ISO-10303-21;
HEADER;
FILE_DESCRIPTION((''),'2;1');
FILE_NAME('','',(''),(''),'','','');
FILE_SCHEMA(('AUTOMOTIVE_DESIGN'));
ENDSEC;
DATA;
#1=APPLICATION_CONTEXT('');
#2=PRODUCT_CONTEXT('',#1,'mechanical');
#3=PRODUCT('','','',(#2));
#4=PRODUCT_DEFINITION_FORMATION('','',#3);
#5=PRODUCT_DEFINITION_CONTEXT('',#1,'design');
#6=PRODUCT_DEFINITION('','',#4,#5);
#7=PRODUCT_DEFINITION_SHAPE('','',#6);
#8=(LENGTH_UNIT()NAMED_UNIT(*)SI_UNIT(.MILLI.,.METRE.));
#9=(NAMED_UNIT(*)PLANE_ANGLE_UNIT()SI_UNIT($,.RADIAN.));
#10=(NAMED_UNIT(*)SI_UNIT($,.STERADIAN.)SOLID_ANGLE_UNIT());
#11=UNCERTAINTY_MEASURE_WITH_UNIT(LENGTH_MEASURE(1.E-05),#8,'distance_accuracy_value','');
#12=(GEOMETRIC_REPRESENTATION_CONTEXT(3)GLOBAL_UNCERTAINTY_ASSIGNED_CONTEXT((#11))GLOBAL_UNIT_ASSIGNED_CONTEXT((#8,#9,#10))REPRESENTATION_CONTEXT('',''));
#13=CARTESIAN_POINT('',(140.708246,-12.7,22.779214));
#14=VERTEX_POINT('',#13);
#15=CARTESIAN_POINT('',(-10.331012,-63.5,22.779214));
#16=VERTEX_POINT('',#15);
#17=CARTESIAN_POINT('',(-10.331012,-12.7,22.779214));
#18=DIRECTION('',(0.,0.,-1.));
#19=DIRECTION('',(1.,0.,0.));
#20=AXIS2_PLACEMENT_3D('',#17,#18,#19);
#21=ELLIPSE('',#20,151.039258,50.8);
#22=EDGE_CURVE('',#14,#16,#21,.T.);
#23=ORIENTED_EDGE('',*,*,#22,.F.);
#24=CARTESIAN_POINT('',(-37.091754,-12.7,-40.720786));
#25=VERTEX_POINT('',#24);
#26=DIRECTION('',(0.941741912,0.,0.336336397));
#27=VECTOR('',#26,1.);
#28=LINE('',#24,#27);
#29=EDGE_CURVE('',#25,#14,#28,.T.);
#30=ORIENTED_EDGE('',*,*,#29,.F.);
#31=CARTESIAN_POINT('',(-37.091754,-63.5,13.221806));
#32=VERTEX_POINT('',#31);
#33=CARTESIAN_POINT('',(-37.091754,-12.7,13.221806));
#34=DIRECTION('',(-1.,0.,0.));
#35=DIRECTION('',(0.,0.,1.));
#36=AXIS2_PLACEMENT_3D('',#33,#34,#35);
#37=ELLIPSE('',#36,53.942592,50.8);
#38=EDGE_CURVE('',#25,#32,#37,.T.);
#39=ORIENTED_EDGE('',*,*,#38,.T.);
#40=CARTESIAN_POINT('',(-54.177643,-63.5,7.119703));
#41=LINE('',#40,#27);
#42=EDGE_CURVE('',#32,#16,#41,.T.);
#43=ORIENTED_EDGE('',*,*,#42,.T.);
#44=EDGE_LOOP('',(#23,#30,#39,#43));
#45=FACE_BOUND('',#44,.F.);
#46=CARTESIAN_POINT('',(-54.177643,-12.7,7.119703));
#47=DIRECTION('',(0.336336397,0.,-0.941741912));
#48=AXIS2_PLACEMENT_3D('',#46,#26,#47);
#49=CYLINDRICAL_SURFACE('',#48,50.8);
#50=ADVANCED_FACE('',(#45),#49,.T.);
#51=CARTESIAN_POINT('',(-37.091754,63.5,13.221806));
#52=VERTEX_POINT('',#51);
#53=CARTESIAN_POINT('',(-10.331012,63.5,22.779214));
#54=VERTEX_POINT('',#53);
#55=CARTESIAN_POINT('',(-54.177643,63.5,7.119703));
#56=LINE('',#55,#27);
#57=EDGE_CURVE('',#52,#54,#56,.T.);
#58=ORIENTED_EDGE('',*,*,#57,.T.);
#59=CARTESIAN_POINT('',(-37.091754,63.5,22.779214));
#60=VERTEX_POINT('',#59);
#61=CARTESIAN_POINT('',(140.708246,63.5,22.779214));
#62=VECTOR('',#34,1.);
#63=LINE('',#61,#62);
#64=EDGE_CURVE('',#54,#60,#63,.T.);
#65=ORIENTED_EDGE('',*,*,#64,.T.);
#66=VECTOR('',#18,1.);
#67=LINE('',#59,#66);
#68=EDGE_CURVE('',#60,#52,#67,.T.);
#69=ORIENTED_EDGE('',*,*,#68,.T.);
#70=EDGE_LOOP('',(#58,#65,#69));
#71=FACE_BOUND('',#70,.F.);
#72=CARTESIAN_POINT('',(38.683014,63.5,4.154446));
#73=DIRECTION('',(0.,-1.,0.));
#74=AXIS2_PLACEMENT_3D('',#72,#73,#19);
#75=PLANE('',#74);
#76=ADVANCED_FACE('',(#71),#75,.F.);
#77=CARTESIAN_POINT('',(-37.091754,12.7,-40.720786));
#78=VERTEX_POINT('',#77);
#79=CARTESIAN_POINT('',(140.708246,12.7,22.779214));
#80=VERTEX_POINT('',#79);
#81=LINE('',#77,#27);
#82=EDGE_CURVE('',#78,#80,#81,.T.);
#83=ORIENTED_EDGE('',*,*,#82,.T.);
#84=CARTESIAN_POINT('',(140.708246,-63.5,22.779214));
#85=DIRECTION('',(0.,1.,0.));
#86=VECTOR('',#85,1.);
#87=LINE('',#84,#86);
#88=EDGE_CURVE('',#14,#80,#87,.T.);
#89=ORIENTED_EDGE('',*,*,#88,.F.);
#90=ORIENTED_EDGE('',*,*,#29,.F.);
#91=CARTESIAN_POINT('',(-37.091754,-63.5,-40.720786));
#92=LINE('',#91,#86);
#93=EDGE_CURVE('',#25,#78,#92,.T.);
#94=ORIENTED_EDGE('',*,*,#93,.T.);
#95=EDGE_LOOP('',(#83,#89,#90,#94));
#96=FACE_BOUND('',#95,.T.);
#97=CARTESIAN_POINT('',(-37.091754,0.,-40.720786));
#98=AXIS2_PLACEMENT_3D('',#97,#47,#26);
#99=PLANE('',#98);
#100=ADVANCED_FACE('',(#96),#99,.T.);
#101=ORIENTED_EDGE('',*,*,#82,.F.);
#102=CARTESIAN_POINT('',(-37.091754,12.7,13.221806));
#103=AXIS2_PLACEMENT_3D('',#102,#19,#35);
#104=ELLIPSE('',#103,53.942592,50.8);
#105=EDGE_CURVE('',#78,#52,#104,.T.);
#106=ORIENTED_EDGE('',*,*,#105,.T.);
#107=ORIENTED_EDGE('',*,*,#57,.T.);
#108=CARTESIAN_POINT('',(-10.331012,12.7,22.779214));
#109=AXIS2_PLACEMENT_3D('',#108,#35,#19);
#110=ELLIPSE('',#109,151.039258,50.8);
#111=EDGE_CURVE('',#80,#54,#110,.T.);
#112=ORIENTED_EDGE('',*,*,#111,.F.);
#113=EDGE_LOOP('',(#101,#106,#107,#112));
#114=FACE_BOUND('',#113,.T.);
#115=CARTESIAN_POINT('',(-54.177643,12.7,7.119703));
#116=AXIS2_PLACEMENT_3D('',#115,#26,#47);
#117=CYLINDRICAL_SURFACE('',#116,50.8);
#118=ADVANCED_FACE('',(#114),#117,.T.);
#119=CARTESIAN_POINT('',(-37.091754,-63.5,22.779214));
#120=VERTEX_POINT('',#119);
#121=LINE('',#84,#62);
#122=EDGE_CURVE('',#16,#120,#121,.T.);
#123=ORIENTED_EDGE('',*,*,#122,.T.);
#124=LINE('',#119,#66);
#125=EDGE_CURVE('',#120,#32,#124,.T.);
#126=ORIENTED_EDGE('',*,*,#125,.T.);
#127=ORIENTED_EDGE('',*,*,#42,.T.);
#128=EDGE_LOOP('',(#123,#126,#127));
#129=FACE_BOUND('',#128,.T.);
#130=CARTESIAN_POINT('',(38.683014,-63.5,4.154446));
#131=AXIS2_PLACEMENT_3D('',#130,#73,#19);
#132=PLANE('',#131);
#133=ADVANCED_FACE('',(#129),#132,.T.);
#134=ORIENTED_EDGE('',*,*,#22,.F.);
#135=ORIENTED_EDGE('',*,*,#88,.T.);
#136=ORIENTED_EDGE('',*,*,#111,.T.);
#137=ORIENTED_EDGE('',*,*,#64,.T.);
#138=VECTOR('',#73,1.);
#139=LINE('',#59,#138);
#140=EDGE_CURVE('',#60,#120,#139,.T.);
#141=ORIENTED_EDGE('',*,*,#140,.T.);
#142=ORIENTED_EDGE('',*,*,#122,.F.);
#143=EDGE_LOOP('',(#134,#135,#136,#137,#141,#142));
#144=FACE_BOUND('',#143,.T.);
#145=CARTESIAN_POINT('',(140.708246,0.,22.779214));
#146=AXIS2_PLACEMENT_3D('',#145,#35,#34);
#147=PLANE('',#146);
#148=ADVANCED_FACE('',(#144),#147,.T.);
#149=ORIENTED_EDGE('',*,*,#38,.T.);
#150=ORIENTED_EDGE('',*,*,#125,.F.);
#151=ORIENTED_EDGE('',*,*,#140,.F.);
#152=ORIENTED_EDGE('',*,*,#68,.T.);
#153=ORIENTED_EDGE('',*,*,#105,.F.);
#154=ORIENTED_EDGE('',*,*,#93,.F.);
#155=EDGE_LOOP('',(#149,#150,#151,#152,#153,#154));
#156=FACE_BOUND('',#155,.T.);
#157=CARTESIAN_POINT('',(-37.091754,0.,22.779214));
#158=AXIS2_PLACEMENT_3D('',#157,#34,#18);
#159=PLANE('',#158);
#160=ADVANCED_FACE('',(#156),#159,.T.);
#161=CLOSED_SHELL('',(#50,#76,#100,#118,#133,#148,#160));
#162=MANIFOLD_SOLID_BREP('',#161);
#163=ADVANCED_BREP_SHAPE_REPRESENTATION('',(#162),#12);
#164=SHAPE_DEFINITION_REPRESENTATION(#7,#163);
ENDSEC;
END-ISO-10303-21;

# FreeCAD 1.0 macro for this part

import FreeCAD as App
import Part
import Sketcher

V = App.Vector
Q = App.Units.Quantity


def edges_at(feature, points):
    """Names of the edges that pass closest to the given points."""
    edges = feature.Shape.Edges
    near = lambda p: min(range(len(edges)), key=lambda i: edges[i].distToShape(Part.Vertex(*p))[0])
    return sorted({f"Edge{near(p) + 1}" for p in points})


def add_polygon(sketch, points):
    """Adds a closed chain of lines whose ends are joined by coincident constraints."""
    first, n = sketch.GeometryCount, len(points)
    for a, b in zip(points, points[1:] + points[:1]):
        sketch.addGeometry(Part.LineSegment(App.Vector(*a, 0), App.Vector(*b, 0)), False)
    for i in range(n):
        sketch.addConstraint(Sketcher.Constraint("Coincident", first + i, 2, first + (i + 1) % n, 1))

doc = App.newDocument("Part")
body = doc.addObject("PartDesign::Body", "Body")

sketch1 = doc.addObject("Sketcher::SketchObject", "Sketch")
body.addObject(sketch1)
sketch1.AttachmentSupport = (doc.XZ_Plane, [""])
sketch1.MapMode = "FlatFace"
add_polygon(sketch1, [(141, 23), (-37, 23), (-37, -41)])
sketch1.addConstraint(Sketcher.Constraint("Horizontal", 0))
sketch1.addConstraint(Sketcher.Constraint("Vertical", 1))
sketch1.addConstraint(Sketcher.Constraint("DistanceX", 0, 2, 0, 1, Q("7 in")))
sketch1.addConstraint(Sketcher.Constraint("DistanceY", 1, 2, 1, 1, Q("2.5 in")))
sketch1.addConstraint(Sketcher.Constraint("DistanceX", 0, 2, -1, 1, 37.091754))
sketch1.addConstraint(Sketcher.Constraint("DistanceY", -1, 1, 0, 2, 22.779214))
pad1 = doc.addObject("PartDesign::Pad", "Pad")
body.addObject(pad1)
pad1.Profile = sketch1
pad1.Length = Q("5 in")
pad1.Midplane = True
doc.recompute()

fillet = doc.addObject("PartDesign::Fillet", "Fillet")
body.addObject(fillet)
fillet.Base = (pad1, edges_at(pad1, [(51.808, 63.5, -8.971), (51.808, -63.5, -8.971)]))
fillet.Radius = Q("2 in")

doc.recompute()
